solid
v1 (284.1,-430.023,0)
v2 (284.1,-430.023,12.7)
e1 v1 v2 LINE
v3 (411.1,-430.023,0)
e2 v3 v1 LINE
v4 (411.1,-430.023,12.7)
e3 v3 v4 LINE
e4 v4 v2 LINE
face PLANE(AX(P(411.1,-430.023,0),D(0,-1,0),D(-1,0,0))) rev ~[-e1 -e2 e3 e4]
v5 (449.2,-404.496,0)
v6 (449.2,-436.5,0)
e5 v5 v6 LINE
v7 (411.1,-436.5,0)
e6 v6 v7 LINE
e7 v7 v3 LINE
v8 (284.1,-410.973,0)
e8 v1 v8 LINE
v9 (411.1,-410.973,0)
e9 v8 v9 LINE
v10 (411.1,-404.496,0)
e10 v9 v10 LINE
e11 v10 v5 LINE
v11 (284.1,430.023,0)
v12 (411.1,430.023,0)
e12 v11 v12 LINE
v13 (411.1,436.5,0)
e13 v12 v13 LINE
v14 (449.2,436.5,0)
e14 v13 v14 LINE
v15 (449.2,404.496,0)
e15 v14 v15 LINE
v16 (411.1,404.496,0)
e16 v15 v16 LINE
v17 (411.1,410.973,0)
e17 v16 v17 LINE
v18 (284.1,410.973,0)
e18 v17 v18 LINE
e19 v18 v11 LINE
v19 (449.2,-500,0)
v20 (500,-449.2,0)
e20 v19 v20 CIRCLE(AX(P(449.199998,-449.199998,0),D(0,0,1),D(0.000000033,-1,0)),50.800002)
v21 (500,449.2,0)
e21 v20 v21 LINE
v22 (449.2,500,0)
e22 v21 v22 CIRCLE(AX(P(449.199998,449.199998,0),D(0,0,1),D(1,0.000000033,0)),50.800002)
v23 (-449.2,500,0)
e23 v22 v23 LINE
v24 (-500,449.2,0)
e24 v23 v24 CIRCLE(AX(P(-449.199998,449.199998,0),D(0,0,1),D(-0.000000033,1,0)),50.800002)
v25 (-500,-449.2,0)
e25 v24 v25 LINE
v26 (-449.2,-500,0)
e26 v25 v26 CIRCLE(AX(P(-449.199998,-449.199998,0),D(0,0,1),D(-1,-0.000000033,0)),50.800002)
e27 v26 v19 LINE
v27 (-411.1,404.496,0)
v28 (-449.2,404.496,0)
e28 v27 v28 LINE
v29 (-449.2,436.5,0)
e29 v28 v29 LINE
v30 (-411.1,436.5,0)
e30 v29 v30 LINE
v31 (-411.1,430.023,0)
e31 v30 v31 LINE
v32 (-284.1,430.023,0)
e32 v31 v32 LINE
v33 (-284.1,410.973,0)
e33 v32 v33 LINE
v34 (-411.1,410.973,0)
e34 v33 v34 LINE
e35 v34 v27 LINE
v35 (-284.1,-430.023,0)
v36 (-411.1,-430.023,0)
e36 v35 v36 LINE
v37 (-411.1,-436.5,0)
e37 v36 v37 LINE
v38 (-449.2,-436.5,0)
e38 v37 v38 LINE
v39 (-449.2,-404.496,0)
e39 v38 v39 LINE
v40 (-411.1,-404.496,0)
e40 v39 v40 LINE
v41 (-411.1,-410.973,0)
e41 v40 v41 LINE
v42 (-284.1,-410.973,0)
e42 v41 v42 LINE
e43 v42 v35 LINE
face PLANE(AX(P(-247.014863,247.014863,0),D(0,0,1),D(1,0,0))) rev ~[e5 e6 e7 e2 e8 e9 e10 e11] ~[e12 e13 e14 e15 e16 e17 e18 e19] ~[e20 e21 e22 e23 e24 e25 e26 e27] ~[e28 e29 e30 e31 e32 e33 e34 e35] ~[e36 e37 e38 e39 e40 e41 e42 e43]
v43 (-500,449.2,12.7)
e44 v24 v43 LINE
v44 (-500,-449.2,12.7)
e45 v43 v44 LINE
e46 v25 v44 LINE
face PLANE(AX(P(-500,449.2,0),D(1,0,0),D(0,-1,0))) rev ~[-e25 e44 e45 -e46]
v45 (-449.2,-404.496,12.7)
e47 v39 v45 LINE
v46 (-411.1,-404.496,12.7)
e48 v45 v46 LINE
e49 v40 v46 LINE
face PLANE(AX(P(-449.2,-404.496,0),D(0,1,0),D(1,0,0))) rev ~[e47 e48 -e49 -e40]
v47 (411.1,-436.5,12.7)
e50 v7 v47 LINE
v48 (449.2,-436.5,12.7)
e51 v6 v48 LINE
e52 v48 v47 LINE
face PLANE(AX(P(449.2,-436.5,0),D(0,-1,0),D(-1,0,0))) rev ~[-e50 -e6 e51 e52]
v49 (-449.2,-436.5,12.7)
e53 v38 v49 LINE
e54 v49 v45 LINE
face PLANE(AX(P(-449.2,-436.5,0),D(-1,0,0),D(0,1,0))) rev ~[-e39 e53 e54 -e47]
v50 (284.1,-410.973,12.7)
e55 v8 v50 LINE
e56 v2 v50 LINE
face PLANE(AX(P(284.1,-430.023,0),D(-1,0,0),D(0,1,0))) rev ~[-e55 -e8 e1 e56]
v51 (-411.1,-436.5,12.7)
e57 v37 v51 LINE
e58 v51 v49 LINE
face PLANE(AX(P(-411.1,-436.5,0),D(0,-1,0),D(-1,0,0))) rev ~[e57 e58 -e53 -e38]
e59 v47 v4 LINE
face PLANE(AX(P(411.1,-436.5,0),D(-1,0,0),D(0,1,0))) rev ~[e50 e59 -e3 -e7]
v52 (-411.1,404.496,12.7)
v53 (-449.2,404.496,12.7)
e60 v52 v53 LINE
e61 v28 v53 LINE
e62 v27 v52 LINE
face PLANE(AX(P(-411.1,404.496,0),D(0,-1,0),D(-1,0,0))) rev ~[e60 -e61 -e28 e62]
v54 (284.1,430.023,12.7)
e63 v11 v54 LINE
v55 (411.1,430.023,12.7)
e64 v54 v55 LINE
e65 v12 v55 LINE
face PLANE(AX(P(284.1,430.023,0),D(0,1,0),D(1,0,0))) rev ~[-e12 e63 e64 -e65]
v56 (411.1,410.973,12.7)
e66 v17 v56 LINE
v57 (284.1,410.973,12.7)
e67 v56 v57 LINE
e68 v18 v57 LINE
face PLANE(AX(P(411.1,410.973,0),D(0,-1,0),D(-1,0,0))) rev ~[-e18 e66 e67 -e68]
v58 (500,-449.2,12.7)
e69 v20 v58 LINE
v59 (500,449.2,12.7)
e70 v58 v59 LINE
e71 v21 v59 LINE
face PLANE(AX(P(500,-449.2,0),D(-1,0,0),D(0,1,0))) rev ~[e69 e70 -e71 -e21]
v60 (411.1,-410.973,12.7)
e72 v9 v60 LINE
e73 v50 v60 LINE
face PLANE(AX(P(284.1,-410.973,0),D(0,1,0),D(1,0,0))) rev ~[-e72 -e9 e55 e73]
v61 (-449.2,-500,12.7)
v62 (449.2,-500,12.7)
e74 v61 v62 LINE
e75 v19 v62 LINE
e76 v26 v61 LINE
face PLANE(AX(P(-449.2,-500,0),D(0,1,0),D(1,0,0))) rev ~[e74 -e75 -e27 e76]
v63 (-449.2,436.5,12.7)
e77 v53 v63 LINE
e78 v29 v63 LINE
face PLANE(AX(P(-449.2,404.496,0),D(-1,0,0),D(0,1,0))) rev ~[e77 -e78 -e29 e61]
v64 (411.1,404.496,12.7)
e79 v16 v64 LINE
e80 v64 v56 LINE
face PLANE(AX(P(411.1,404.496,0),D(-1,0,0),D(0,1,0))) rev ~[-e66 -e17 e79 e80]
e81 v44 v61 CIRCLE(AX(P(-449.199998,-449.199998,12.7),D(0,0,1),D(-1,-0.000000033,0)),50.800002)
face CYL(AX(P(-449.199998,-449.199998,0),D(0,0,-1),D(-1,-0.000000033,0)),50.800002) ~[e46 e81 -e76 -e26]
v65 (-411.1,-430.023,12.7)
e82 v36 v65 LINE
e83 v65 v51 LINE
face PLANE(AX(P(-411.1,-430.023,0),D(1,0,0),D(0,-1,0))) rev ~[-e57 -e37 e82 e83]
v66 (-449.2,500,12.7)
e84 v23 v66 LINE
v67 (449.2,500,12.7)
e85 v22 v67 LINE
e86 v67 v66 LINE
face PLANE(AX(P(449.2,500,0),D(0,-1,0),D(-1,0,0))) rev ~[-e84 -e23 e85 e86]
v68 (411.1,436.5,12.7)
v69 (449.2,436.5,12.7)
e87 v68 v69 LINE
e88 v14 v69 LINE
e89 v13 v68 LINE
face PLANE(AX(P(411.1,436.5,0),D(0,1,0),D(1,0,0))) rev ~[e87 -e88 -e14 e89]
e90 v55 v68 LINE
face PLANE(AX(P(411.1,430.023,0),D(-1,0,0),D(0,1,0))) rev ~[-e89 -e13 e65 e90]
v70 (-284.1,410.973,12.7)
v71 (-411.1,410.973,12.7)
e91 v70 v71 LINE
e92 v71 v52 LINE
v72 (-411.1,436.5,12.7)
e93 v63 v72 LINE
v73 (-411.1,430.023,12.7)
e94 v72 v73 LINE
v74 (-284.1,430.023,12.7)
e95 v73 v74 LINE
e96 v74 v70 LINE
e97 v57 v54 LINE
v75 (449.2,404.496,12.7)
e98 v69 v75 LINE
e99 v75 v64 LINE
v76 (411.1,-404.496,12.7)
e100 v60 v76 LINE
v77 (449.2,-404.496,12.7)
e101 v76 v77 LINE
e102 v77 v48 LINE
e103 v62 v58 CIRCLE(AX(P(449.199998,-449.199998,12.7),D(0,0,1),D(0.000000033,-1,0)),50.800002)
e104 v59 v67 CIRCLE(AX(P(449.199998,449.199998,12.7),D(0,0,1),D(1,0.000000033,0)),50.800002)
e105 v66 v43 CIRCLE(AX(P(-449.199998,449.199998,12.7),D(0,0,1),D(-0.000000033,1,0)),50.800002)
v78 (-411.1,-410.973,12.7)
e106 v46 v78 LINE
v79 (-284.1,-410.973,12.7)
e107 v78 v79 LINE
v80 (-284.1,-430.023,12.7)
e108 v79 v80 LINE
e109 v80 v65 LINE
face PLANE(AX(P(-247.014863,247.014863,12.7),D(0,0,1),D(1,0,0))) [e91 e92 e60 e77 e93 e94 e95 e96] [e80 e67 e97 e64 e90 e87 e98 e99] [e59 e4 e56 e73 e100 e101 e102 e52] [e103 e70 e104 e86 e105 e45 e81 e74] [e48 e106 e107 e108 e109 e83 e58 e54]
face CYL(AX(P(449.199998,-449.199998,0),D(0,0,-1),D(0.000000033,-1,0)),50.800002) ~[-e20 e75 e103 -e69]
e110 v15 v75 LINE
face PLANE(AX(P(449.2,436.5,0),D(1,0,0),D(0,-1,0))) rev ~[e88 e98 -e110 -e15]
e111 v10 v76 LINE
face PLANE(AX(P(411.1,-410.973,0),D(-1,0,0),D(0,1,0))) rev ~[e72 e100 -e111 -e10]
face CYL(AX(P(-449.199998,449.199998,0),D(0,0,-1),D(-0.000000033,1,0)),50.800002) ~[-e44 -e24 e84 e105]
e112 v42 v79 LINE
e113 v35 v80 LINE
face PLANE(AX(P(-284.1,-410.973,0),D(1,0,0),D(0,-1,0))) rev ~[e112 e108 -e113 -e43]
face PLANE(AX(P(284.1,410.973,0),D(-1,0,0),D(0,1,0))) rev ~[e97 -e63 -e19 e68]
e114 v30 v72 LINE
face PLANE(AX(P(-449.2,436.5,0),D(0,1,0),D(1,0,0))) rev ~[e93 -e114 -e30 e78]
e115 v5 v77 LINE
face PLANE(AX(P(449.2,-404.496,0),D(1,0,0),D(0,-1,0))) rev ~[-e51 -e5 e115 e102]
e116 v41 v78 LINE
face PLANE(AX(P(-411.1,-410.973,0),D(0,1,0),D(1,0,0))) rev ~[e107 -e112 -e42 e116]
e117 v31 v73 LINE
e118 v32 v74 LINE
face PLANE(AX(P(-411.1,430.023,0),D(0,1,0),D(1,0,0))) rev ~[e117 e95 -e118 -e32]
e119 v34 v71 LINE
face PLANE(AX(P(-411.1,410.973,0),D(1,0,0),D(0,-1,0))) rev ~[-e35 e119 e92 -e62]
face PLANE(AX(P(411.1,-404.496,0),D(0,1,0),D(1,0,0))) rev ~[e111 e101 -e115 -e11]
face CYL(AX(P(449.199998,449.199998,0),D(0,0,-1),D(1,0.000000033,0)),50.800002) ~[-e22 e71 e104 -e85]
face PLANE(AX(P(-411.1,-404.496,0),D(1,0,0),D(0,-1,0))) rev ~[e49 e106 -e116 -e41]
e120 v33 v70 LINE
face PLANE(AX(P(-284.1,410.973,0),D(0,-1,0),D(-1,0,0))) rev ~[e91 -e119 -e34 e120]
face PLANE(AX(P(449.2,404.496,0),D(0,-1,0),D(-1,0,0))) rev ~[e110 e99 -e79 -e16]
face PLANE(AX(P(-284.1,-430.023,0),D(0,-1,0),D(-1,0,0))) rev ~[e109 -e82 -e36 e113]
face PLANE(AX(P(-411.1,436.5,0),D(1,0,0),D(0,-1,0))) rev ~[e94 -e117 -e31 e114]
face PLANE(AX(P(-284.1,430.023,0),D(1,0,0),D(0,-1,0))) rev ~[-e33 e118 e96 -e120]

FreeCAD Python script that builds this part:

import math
import FreeCAD as App
import Part
import Sketcher

V = App.Vector
Q = App.Units.Quantity


def add_polygon(sketch, points):
    """Adds a closed chain of lines whose ends are joined by coincident constraints."""
    first, n = sketch.GeometryCount, len(points)
    for a, b in zip(points, points[1:] + points[:1]):
        sketch.addGeometry(Part.LineSegment(App.Vector(*a, 0), App.Vector(*b, 0)), False)
    for i in range(n):
        sketch.addConstraint(Sketcher.Constraint("Coincident", first + i, 2, first + (i + 1) % n, 1))

doc = App.newDocument("Part")
body = doc.addObject("PartDesign::Body", "Body")

# Sketch on XY plane
sketch1 = body.newObject("Sketcher::SketchObject", "Sketch")
sketch1.AttachmentSupport = (doc.getObject("XY_Plane"), [""])
sketch1.MapMode = "FlatFace"
sketch1.addGeometry(Part.ArcOfCircle(Part.Circle(V(-449, 449, 0), V(0, 0, 1), 51), math.radians(90), math.radians(180)), False)  # 0
sketch1.addGeometry(Part.LineSegment(V(-500, 449, 0), V(-500, -449, 0)), False)  # 1
sketch1.addGeometry(Part.ArcOfCircle(Part.Circle(V(-449, -449, 0), V(0, 0, 1), 51), math.radians(-180), math.radians(-90)), False)  # 2
sketch1.addGeometry(Part.LineSegment(V(-449, -500, 0), V(449, -500, 0)), False)  # 3
sketch1.addGeometry(Part.ArcOfCircle(Part.Circle(V(449, -449, 0), V(0, 0, 1), 51), math.radians(-90), math.radians(0)), False)  # 4
sketch1.addGeometry(Part.LineSegment(V(500, -449, 0), V(500, 449, 0)), False)  # 5
sketch1.addGeometry(Part.ArcOfCircle(Part.Circle(V(449, 449, 0), V(0, 0, 1), 51), math.radians(0), math.radians(90)), False)  # 6
sketch1.addGeometry(Part.LineSegment(V(449, 500, 0), V(-449, 500, 0)), False)  # 7
add_polygon(sketch1, [(-411, -436), (-449, -436), (-449, -404), (-411, -404), (-411, -411), (-284, -411), (-284, -430), (-411, -430)])  # lines 8-15
add_polygon(sketch1, [(411, -430), (284, -430), (284, -411), (411, -411), (411, -404), (449, -404), (449, -436), (411, -436)])  # lines 16-23
add_polygon(sketch1, [(-284, 411), (-411, 411), (-411, 404), (-449, 404), (-449, 436), (-411, 436), (-411, 430), (-284, 430)])  # lines 24-31
add_polygon(sketch1, [(284, 430), (411, 430), (411, 436), (449, 436), (449, 404), (411, 404), (411, 411), (284, 411)])  # lines 32-39
sketch1.addConstraint([
    Sketcher.Constraint("Tangent", 0, 2, 1, 1),
    Sketcher.Constraint("Tangent", 1, 2, 2, 1),
    Sketcher.Constraint("Tangent", 2, 2, 3, 1),
    Sketcher.Constraint("Tangent", 3, 2, 4, 1),
    Sketcher.Constraint("Tangent", 4, 2, 5, 1),
    Sketcher.Constraint("Tangent", 5, 2, 6, 1),
    Sketcher.Constraint("Tangent", 6, 2, 7, 1),
    Sketcher.Constraint("Tangent", 7, 2, 0, 1),
    Sketcher.Constraint("Vertical", 1),
    Sketcher.Constraint("Horizontal", 3),
    Sketcher.Constraint("Vertical", 5),
    Sketcher.Constraint("Horizontal", 7),
    Sketcher.Constraint("Horizontal", 8),
    Sketcher.Constraint("Vertical", 9),
    Sketcher.Constraint("Horizontal", 10),
    Sketcher.Constraint("Vertical", 11),
    Sketcher.Constraint("Horizontal", 12),
    Sketcher.Constraint("Vertical", 13),
    Sketcher.Constraint("Horizontal", 14),
    Sketcher.Constraint("Vertical", 15),
    Sketcher.Constraint("Horizontal", 16),
    Sketcher.Constraint("Vertical", 17),
    Sketcher.Constraint("Horizontal", 18),
    Sketcher.Constraint("Vertical", 19),
    Sketcher.Constraint("Horizontal", 20),
    Sketcher.Constraint("Vertical", 21),
    Sketcher.Constraint("Horizontal", 22),
    Sketcher.Constraint("Vertical", 23),
    Sketcher.Constraint("Horizontal", 24),
    Sketcher.Constraint("Vertical", 25),
    Sketcher.Constraint("Horizontal", 26),
    Sketcher.Constraint("Vertical", 27),
    Sketcher.Constraint("Horizontal", 28),
    Sketcher.Constraint("Vertical", 29),
    Sketcher.Constraint("Horizontal", 30),
    Sketcher.Constraint("Vertical", 31),
    Sketcher.Constraint("Horizontal", 32),
    Sketcher.Constraint("Vertical", 33),
    Sketcher.Constraint("Horizontal", 34),
    Sketcher.Constraint("Vertical", 35),
    Sketcher.Constraint("Horizontal", 36),
    Sketcher.Constraint("Vertical", 37),
    Sketcher.Constraint("Horizontal", 38),
    Sketcher.Constraint("Vertical", 39),
    Sketcher.Constraint("Equal", 0, 2),
    Sketcher.Constraint("Equal", 2, 4),
    Sketcher.Constraint("Equal", 4, 6),
    Sketcher.Constraint("Symmetric", 0, 3, 4, 3, -1, 1),
    Sketcher.Constraint("Symmetric", 18, 2, 24, 2, -1, 1),
    Sketcher.Constraint("Symmetric", 20, 2, 26, 2, -1, 1),
    Sketcher.Constraint("Symmetric", 22, 2, 28, 2, -1, 1),
    Sketcher.Constraint("Symmetric", 16, 2, 30, 2, -1, 1),
    Sketcher.Constraint("Symmetric", 14, 2, 32, 2, -1, 1),
    Sketcher.Constraint("Symmetric", 8, 2, 34, 2, -1, 1),
    Sketcher.Constraint("Symmetric", 10, 2, 36, 2, -1, 1),
    Sketcher.Constraint("Symmetric", 12, 2, 38, 2, -1, 1),
    Sketcher.Constraint("Symmetric", 13, 2, 16, 2, -2),
    Sketcher.Constraint("Symmetric", 11, 2, 18, 2, -2),
    Sketcher.Constraint("Symmetric", 9, 2, 20, 2, -2),
    Sketcher.Constraint("Symmetric", 15, 2, 22, 2, -2),
    Sketcher.Constraint("Vertical", 7, 2, 8, 2),
    Sketcher.Constraint("Vertical", 11, 2, 14, 2),
    Sketcher.Constraint("Equal", 7, 1),
    Sketcher.Constraint("Equal", 11, 15),
    Sketcher.Constraint("Radius", 0, Q("2.0000001 in")),
    Sketcher.Constraint("DistanceX", 12, 1, 12, 2, Q("5 in")),
    Sketcher.Constraint("DistanceX", 8, 2, 8, 1, Q("1.5 in")),
    Sketcher.Constraint("DistanceY", 9, 1, 9, 2, Q("1.26 in")),
    Sketcher.Constraint("DistanceY", 13, 2, 13, 1, Q("0.75 in")),
    Sketcher.Constraint("DistanceY", 2, 3, 8, 2, Q("0.4999999 in")),
    Sketcher.Constraint("DistanceX", 3, 1, 3, 2, 898.4),
])
pad1 = body.newObject("PartDesign::Pad", "Pad")
pad1.Profile = sketch1
pad1.Length = Q("0.5 in")

doc.recompute()
